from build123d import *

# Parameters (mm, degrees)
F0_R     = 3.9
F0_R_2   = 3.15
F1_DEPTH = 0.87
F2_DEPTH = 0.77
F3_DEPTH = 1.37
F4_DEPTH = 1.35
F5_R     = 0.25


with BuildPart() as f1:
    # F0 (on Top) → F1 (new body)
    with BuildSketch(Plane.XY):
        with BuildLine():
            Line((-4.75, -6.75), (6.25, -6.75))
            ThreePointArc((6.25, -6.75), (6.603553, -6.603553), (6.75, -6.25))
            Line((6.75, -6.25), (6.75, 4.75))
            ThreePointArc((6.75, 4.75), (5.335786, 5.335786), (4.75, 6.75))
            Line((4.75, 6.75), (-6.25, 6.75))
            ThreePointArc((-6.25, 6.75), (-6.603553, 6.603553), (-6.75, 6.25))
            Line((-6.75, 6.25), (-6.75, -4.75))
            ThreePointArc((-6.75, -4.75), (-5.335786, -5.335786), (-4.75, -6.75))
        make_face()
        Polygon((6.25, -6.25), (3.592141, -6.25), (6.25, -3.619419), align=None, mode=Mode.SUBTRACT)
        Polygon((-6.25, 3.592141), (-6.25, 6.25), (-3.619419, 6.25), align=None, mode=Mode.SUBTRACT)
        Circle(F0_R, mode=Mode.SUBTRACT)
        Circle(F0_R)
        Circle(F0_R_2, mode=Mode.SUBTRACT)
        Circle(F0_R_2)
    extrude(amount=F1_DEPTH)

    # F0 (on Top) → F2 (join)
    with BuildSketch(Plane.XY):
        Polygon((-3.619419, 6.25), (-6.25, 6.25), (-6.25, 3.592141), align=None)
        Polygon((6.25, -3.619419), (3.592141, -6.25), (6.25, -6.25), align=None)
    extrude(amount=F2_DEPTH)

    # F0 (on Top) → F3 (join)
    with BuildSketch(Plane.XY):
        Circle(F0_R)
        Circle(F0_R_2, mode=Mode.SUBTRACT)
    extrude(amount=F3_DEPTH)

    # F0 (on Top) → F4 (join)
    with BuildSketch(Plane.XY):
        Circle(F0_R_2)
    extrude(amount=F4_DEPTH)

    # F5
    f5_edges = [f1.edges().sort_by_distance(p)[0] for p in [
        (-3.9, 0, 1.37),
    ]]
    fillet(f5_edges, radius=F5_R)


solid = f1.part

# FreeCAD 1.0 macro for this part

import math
import FreeCAD as App
import Part
import Sketcher
from FreeCAD import Vector


def edges_at(feature, points):
    """Names of the edges that pass closest to the given points."""
    edges = feature.Shape.Edges
    near = lambda p: min(range(len(edges)), key=lambda i: edges[i].distToShape(Part.Vertex(*p))[0])
    return sorted({f"Edge{near(p) + 1}" for p in points})


def add_polygon(sketch, points):
    """Adds a closed chain of lines whose ends are joined by coincident constraints."""
    first, n = sketch.GeometryCount, len(points)
    for a, b in zip(points, points[1:] + points[:1]):
        sketch.addGeometry(Part.LineSegment(App.Vector(*a, 0), App.Vector(*b, 0)), False)
    for i in range(n):
        sketch.addConstraint(Sketcher.Constraint("Coincident", first + i, 2, first + (i + 1) % n, 1))

doc = App.newDocument("Part")
params = doc.addObject("Spreadsheet::Sheet", "Params")
for row, (alias, value) in enumerate([
    ("sketch1_radius", "1.999999 mm"),
    ("sketch1_radius2", "0.500001 mm"),
    ("sketch1_width", "11 mm"),
    ("pad1_length", "0.87 mm"),
    ("pad2_length", "0.77 mm"),
    ("sketch3_diameter", "7.8 mm"),
    ("sketch3_diameter2", "6.3 mm"),
    ("pad3_length", "1.37 mm"),
    ("sketch4_diameter", "6.3 mm"),
    ("pad4_length", "1.35 mm"),
    ("fillet_radius", "0.25 mm"),
], start=1):
    params.set(f"A{row}", alias)
    params.set(f"B{row}", "=" + value)
    params.setAlias(f"B{row}", alias)

body = doc.addObject("PartDesign::Body", "Body")

sketch1 = body.newObject("Sketcher::SketchObject", "Sketch")
sketch1.AttachmentSupport = (doc.getObject("XY_Plane"), [""])
sketch1.MapMode = "FlatFace"
sketch1.addGeometry(Part.LineSegment(Vector(-4.75, -6.75, 0), Vector(6.25, -6.75, 0)), False)
sketch1.addGeometry(Part.ArcOfCircle(Part.Circle(Vector(6.249999, -6.249999, 0), Vector(0, 0, 1), 0.500001), math.radians(-89.999847), math.radians(-0.000153)), False)
sketch1.addGeometry(Part.LineSegment(Vector(6.75, -6.25, 0), Vector(6.75, 4.75, 0)), False)
sketch1.addGeometry(Part.ArcOfCircle(Part.Circle(Vector(6.749999, 6.749999, 0), Vector(0, 0, 1), 1.999999), math.radians(179.999957), math.radians(270.000043)), False)
sketch1.addGeometry(Part.LineSegment(Vector(4.75, 6.75, 0), Vector(-6.25, 6.75, 0)), False)
sketch1.addGeometry(Part.ArcOfCircle(Part.Circle(Vector(-6.249999, 6.249999, 0), Vector(0, 0, 1), 0.500001), math.radians(90.000153), math.radians(179.999847)), False)
sketch1.addGeometry(Part.LineSegment(Vector(-6.75, 6.25, 0), Vector(-6.75, -4.75, 0)), False)
sketch1.addGeometry(Part.ArcOfCircle(Part.Circle(Vector(-6.749999, -6.749999, 0), Vector(0, 0, 1), 1.999999), math.radians(-0.000043), math.radians(90.000043)), False)
add_polygon(sketch1, [(6.25, -3.619419), (6.25, -6.25), (3.592141, -6.25)])
add_polygon(sketch1, [(-3.619419, 6.25), (-6.25, 3.592141), (-6.25, 6.25)])
sketch1.addConstraint(Sketcher.Constraint("Coincident", 0, 2, 1, 1))
sketch1.addConstraint(Sketcher.Constraint("Coincident", 1, 2, 2, 1))
sketch1.addConstraint(Sketcher.Constraint("Coincident", 2, 2, 3, 2))
sketch1.addConstraint(Sketcher.Constraint("Coincident", 3, 1, 4, 1))
sketch1.addConstraint(Sketcher.Constraint("Coincident", 4, 2, 5, 1))
sketch1.addConstraint(Sketcher.Constraint("Coincident", 5, 2, 6, 1))
sketch1.addConstraint(Sketcher.Constraint("Coincident", 6, 2, 7, 2))
sketch1.addConstraint(Sketcher.Constraint("Coincident", 7, 1, 0, 1))
sketch1.addConstraint(Sketcher.Constraint("Horizontal", 0))
sketch1.addConstraint(Sketcher.Constraint("Vertical", 2))
sketch1.addConstraint(Sketcher.Constraint("Horizontal", 4))
sketch1.addConstraint(Sketcher.Constraint("Vertical", 6))
sketch1.addConstraint(Sketcher.Constraint("Vertical", 8))
sketch1.addConstraint(Sketcher.Constraint("Horizontal", 9))
sketch1.addConstraint(Sketcher.Constraint("Vertical", 12))
sketch1.addConstraint(Sketcher.Constraint("Horizontal", 13))
sketch1.addConstraint(Sketcher.Constraint("Coincident", 8, 2, 1, 3))
sketch1.addConstraint(Sketcher.Constraint("Coincident", 12, 2, 5, 3))
sketch1.addConstraint(Sketcher.Constraint("Equal", 1, 5))
sketch1.addConstraint(Sketcher.Constraint("Equal", 3, 7))
sketch1.addConstraint(Sketcher.Constraint("Symmetric", 1, 3, 5, 3, -1, 1))
sketch1.addConstraint(Sketcher.Constraint("Symmetric", 3, 3, 7, 3, -1, 1))
sketch1.addConstraint(Sketcher.Constraint("Horizontal", 7, 3, 0, 2))
sketch1.addConstraint(Sketcher.Constraint("Horizontal", 1, 2, 8, 2))
sketch1.addConstraint(Sketcher.Constraint("Horizontal", 5, 2, 12, 2))
sketch1.addConstraint(Sketcher.Constraint("Vertical", 1, 3, 0, 2))
sketch1.addConstraint(Sketcher.Constraint("Vertical", 3, 3, 1, 2))
sketch1.addConstraint(Sketcher.Constraint("Vertical", 5, 3, 4, 2))
sketch1.addConstraint(Sketcher.Constraint("Equal", 4, 2))
sketch1.addConstraint(Sketcher.Constraint("Equal", 13, 8))
sketch1.addConstraint(Sketcher.Constraint("Equal", 9, 12))
sketch1.addConstraint(Sketcher.Constraint("Radius", 3, 1.999999))
sketch1.addConstraint(Sketcher.Constraint("Radius", 1, 0.500001))
sketch1.addConstraint(Sketcher.Constraint("DistanceX", 0, 1, 0, 2, 11.0))
sketch1.addConstraint(Sketcher.Constraint("DistanceX", 9, 2, 9, 1, 2.657859))
sketch1.addConstraint(Sketcher.Constraint("DistanceX", 13, 1, 13, 2, 2.630581))
sketch1.setExpression("Constraints[37]", "Params.sketch1_radius")
sketch1.setExpression("Constraints[38]", "Params.sketch1_radius2")
sketch1.setExpression("Constraints[39]", "Params.sketch1_width")
pad1 = body.newObject("PartDesign::Pad", "Pad")
pad1.Profile = sketch1
pad1.setExpression("Length", "Params.pad1_length")

sketch2 = body.newObject("Sketcher::SketchObject", "Sketch001")
sketch2.AttachmentSupport = (doc.getObject("XY_Plane"), [""])
sketch2.MapMode = "FlatFace"
add_polygon(sketch2, [(-3.619419, 6.25), (-6.25, 6.25), (-6.25, 3.592141)])
add_polygon(sketch2, [(6.25, -3.619419), (3.592141, -6.25), (6.25, -6.25)])
sketch2.addConstraint(Sketcher.Constraint("Horizontal", 0))
sketch2.addConstraint(Sketcher.Constraint("Vertical", 1))
sketch2.addConstraint(Sketcher.Constraint("Horizontal", 4))
sketch2.addConstraint(Sketcher.Constraint("Vertical", 5))
sketch2.addConstraint(Sketcher.Constraint("Symmetric", 0, 2, 4, 2, -1, 1))
sketch2.addConstraint(Sketcher.Constraint("Equal", 4, 1))
sketch2.addConstraint(Sketcher.Constraint("Equal", 0, 5))
sketch2.addConstraint(Sketcher.Constraint("DistanceY", 3, 2, 2, 2, 12.5))
sketch2.addConstraint(Sketcher.Constraint("DistanceX", 1, 2, 4, 2, 12.5))
sketch2.addConstraint(Sketcher.Constraint("DistanceX", 0, 2, 0, 1, 2.630581))
sketch2.addConstraint(Sketcher.Constraint("DistanceX", 4, 1, 4, 2, 2.657859))
pad2 = body.newObject("PartDesign::Pad", "Pad001")
pad2.Profile = sketch2
pad2.setExpression("Length", "Params.pad2_length")

sketch3 = body.newObject("Sketcher::SketchObject", "Sketch002")
sketch3.AttachmentSupport = (doc.getObject("XY_Plane"), [""])
sketch3.MapMode = "FlatFace"
sketch3.addGeometry(Part.Circle(Vector(0, 0, 0), Vector(0, 0, 1), 3.9), False)
sketch3.addGeometry(Part.Circle(Vector(0, 0, 0), Vector(0, 0, 1), 3.15), False)
sketch3.addConstraint(Sketcher.Constraint("Coincident", 0, 3, -1, 1))
sketch3.addConstraint(Sketcher.Constraint("Coincident", 1, 3, -1, 1))
sketch3.addConstraint(Sketcher.Constraint("Diameter", 0, 7.8))
sketch3.addConstraint(Sketcher.Constraint("Diameter", 1, 6.3))
sketch3.setExpression("Constraints[2]", "Params.sketch3_diameter")
sketch3.setExpression("Constraints[3]", "Params.sketch3_diameter2")
pad3 = body.newObject("PartDesign::Pad", "Pad002")
pad3.Profile = sketch3
pad3.setExpression("Length", "Params.pad3_length")

sketch4 = body.newObject("Sketcher::SketchObject", "Sketch003")
sketch4.AttachmentSupport = (doc.getObject("XY_Plane"), [""])
sketch4.MapMode = "FlatFace"
sketch4.addGeometry(Part.Circle(Vector(0, 0, 0), Vector(0, 0, 1), 3.15), False)
sketch4.addConstraint(Sketcher.Constraint("Coincident", 0, 3, -1, 1))
sketch4.addConstraint(Sketcher.Constraint("Diameter", 0, 6.3))
sketch4.setExpression("Constraints[1]", "Params.sketch4_diameter")
pad4 = body.newObject("PartDesign::Pad", "Pad003")
pad4.Profile = sketch4
pad4.setExpression("Length", "Params.pad4_length")
doc.recompute()

fillet = body.newObject("PartDesign::Fillet", "Fillet")
fillet.Base = (pad4, edges_at(pad4, [(-3.9, 0, 1.37)]))
fillet.setExpression("Radius", "Params.fillet_radius")

doc.recompute()
